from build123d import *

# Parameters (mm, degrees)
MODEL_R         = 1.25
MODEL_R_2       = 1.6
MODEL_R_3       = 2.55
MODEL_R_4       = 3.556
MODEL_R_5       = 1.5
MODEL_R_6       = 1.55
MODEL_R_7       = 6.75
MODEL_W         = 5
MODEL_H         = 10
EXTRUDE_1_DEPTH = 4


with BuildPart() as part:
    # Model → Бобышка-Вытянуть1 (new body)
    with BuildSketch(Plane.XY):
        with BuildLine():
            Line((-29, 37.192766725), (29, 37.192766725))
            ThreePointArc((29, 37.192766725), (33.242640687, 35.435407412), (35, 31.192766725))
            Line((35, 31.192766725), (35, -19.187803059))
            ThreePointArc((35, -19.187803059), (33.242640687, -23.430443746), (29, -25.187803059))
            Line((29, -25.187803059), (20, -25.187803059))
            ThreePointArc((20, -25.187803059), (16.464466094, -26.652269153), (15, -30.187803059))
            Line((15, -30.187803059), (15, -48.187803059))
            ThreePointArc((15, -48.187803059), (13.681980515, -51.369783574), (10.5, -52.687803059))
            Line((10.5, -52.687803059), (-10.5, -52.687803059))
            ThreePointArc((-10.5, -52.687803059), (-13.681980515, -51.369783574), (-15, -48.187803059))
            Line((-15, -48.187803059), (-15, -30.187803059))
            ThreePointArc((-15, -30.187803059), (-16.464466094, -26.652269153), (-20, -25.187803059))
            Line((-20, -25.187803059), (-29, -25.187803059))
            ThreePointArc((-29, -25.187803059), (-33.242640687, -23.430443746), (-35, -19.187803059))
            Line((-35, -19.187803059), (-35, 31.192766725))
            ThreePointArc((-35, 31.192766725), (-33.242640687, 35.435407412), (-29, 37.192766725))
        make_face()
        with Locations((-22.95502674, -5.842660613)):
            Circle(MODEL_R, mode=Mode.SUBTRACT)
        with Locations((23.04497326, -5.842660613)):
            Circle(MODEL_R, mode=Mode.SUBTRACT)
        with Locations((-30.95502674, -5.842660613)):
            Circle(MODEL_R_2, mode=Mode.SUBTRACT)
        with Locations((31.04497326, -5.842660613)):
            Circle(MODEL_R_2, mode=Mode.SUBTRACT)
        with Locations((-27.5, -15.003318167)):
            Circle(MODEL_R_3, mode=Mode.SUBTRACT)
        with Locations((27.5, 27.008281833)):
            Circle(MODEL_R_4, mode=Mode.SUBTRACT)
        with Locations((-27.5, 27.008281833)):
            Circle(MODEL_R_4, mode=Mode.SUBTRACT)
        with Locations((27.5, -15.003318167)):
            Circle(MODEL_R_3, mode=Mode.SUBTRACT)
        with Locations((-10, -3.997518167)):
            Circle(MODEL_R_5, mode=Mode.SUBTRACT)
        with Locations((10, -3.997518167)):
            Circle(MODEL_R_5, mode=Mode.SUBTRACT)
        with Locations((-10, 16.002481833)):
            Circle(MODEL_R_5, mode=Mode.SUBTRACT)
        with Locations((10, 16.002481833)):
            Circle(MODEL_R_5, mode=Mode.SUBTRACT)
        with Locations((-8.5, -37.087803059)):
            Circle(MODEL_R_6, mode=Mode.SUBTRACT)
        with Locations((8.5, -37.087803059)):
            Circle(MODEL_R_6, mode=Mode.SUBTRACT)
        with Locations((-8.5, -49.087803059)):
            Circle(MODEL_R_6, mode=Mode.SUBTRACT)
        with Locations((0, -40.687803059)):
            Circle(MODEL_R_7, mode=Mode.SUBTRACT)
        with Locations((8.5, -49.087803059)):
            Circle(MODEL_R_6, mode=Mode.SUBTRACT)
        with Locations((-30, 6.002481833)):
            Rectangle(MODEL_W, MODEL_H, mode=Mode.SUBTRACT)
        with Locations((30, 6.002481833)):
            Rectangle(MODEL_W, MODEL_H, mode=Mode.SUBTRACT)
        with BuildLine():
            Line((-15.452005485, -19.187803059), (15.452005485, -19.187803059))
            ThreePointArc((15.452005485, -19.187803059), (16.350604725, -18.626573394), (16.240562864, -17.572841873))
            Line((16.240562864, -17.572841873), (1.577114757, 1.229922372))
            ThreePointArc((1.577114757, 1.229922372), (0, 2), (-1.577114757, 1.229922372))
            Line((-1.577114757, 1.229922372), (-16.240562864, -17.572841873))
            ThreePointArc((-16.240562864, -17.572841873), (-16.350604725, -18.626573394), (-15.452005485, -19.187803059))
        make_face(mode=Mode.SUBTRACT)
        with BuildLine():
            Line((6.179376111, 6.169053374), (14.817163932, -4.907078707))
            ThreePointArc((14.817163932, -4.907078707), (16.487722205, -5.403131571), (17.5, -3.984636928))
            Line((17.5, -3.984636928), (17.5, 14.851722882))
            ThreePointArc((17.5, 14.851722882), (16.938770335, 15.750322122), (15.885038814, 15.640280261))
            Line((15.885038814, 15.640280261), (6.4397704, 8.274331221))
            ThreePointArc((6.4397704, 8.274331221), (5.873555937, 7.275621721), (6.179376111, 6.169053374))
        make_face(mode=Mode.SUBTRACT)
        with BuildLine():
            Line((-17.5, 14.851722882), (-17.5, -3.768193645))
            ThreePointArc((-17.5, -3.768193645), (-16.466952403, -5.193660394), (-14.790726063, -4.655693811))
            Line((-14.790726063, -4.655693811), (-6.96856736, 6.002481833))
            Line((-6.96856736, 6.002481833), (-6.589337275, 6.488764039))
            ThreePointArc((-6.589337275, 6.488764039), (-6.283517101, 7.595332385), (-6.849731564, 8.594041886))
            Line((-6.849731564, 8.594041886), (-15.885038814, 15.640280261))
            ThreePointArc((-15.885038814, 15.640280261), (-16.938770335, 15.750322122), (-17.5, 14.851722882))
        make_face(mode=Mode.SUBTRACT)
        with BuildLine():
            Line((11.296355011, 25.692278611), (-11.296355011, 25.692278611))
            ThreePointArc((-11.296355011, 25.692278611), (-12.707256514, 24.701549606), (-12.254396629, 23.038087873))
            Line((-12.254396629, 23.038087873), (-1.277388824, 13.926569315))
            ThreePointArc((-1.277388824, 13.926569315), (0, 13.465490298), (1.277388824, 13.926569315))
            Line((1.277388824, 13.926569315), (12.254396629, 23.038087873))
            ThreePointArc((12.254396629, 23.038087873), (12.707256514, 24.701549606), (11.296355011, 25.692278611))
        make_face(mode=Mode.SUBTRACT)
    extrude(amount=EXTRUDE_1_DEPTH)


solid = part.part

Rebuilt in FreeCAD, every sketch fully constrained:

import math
import FreeCAD as App
import Part
import Sketcher
Q = App.Units.Quantity


def add_polygon(sketch, points):
    """Adds a closed chain of lines whose ends are joined by coincident constraints."""
    first, n = sketch.GeometryCount, len(points)
    for a, b in zip(points, points[1:] + points[:1]):
        sketch.addGeometry(Part.LineSegment(App.Vector(*a, 0), App.Vector(*b, 0)), False)
    for i in range(n):
        sketch.addConstraint(Sketcher.Constraint("Coincident", first + i, 2, first + (i + 1) % n, 1))

doc = App.newDocument("Part")
body = doc.addObject("PartDesign::Body", "Body")

# Sketch on XY plane
sketch1 = doc.addObject("Sketcher::SketchObject", "Sketch")
body.addObject(sketch1)
sketch1.AttachmentSupport = (doc.XY_Plane, [""])
sketch1.MapMode = "FlatFace"
sketch1.addGeometry(Part.LineSegment(App.Vector(29, 37.2, 0), App.Vector(-29, 37.2, 0)), False)  # 0
sketch1.addGeometry(Part.ArcOfCircle(Part.Circle(App.Vector(-29, 31.2, 0), App.Vector(0, 0, 1), 6), math.radians(90), math.radians(180)), False)  # 1
sketch1.addGeometry(Part.LineSegment(App.Vector(-35, 31.2, 0), App.Vector(-35, -19.2, 0)), False)  # 2
sketch1.addGeometry(Part.ArcOfCircle(Part.Circle(App.Vector(-29, -19.2, 0), App.Vector(0, 0, 1), 6), math.radians(180), math.radians(270)), False)  # 3
sketch1.addGeometry(Part.LineSegment(App.Vector(-29, -25.2, 0), App.Vector(-20, -25.2, 0)), False)  # 4
sketch1.addGeometry(Part.ArcOfCircle(Part.Circle(App.Vector(-20, -30.2, 0), App.Vector(0, 0, 1), 5), math.radians(0), math.radians(90)), False)  # 5
sketch1.addGeometry(Part.LineSegment(App.Vector(-15, -30.2, 0), App.Vector(-15, -48.2, 0)), False)  # 6
sketch1.addGeometry(Part.ArcOfCircle(Part.Circle(App.Vector(-10.5, -48.2, 0), App.Vector(0, 0, 1), 4.5), math.radians(-180), math.radians(-90)), False)  # 7
sketch1.addGeometry(Part.LineSegment(App.Vector(-10.5, -52.7, 0), App.Vector(10.5, -52.7, 0)), False)  # 8
sketch1.addGeometry(Part.ArcOfCircle(Part.Circle(App.Vector(10.5, -48.2, 0), App.Vector(0, 0, 1), 4.5), math.radians(-90), math.radians(0)), False)  # 9
sketch1.addGeometry(Part.LineSegment(App.Vector(15, -48.2, 0), App.Vector(15, -30.2, 0)), False)  # 10
sketch1.addGeometry(Part.ArcOfCircle(Part.Circle(App.Vector(20, -30.2, 0), App.Vector(0, 0, 1), 5), math.radians(90), math.radians(180)), False)  # 11
sketch1.addGeometry(Part.LineSegment(App.Vector(20, -25.2, 0), App.Vector(29, -25.2, 0)), False)  # 12
sketch1.addGeometry(Part.ArcOfCircle(Part.Circle(App.Vector(29, -19.2, 0), App.Vector(0, 0, 1), 6), math.radians(-90), math.radians(0)), False)  # 13
sketch1.addGeometry(Part.LineSegment(App.Vector(35, -19.2, 0), App.Vector(35, 31.2, 0)), False)  # 14
sketch1.addGeometry(Part.ArcOfCircle(Part.Circle(App.Vector(29, 31.2, 0), App.Vector(0, 0, 1), 6), math.radians(0), math.radians(90)), False)  # 15
sketch1.addGeometry(Part.Circle(App.Vector(8.5, -49.1, 0), App.Vector(0, 0, 1), 1.6), False)  # 16
sketch1.addGeometry(Part.Circle(App.Vector(8.5, -37.1, 0), App.Vector(0, 0, 1), 1.6), False)  # 17
sketch1.addGeometry(Part.Circle(App.Vector(27.5, -15, 0), App.Vector(0, 0, 1), 2.5), False)  # 18
sketch1.addGeometry(Part.Circle(App.Vector(0, -40.7, 0), App.Vector(0, 0, 1), 6.8), False)  # 19
sketch1.addGeometry(Part.Circle(App.Vector(-8.5, -49.1, 0), App.Vector(0, 0, 1), 1.6), False)  # 20
sketch1.addGeometry(Part.Circle(App.Vector(-8.5, -37.1, 0), App.Vector(0, 0, 1), 1.6), False)  # 21
sketch1.addGeometry(Part.Circle(App.Vector(-27.5, -15, 0), App.Vector(0, 0, 1), 2.5), False)  # 22
sketch1.addGeometry(Part.Circle(App.Vector(31, -5.8, 0), App.Vector(0, 0, 1), 1.6), False)  # 23
sketch1.addGeometry(Part.Circle(App.Vector(23, -5.8, 0), App.Vector(0, 0, 1), 1.2), False)  # 24
add_polygon(sketch1, [(27.5, 1), (27.5, 11), (32.5, 11), (32.5, 1)])  # lines 25-28
sketch1.addGeometry(Part.Circle(App.Vector(10, -4, 0), App.Vector(0, 0, 1), 1.5), False)  # 29
sketch1.addGeometry(Part.ArcOfCircle(Part.Circle(App.Vector(7.4, 7.1, 0), App.Vector(0, 0, 1), 1.5), math.radians(128), math.radians(218)), False)  # 30
sketch1.addGeometry(Part.LineSegment(App.Vector(6.4, 8.3, 0), App.Vector(15.9, 15.6, 0)), False)  # 31
sketch1.addGeometry(Part.ArcOfCircle(Part.Circle(App.Vector(16.5, 14.9, 0), App.Vector(0, 0, 1), 1), math.radians(0), math.radians(128)), False)  # 32
sketch1.addGeometry(Part.LineSegment(App.Vector(17.5, 14.9, 0), App.Vector(17.5, -4, 0)), False)  # 33
sketch1.addGeometry(Part.ArcOfCircle(Part.Circle(App.Vector(16, -4, 0), App.Vector(0, 0, 1), 1.5), math.radians(-142), math.radians(0)), False)  # 34
sketch1.addGeometry(Part.LineSegment(App.Vector(14.8, -4.9, 0), App.Vector(6.2, 6.2, 0)), False)  # 35
sketch1.addGeometry(Part.Circle(App.Vector(27.5, 27, 0), App.Vector(0, 0, 1), 3.6), False)  # 36
sketch1.addGeometry(Part.Circle(App.Vector(10, 16, 0), App.Vector(0, 0, 1), 1.5), False)  # 37
sketch1.addGeometry(Part.ArcOfCircle(Part.Circle(App.Vector(-15.5, -18.2, 0), App.Vector(0, 0, 1), 1), math.radians(142), math.radians(270)), False)  # 38
sketch1.addGeometry(Part.LineSegment(App.Vector(-16.2, -17.6, 0), App.Vector(-1.6, 1.2, 0)), False)  # 39
sketch1.addGeometry(Part.ArcOfCircle(Part.Circle(App.Vector(0, 0, 0), App.Vector(0, 0, 1), 2), math.radians(38), math.radians(142)), False)  # 40
sketch1.addGeometry(Part.LineSegment(App.Vector(1.6, 1.2, 0), App.Vector(16.2, -17.6, 0)), False)  # 41
sketch1.addGeometry(Part.ArcOfCircle(Part.Circle(App.Vector(15.5, -18.2, 0), App.Vector(0, 0, 1), 1), math.radians(-90), math.radians(38)), False)  # 42
sketch1.addGeometry(Part.LineSegment(App.Vector(15.5, -19.2, 0), App.Vector(-15.5, -19.2, 0)), False)  # 43
sketch1.addGeometry(Part.Circle(App.Vector(-10, -4, 0), App.Vector(0, 0, 1), 1.5), False)  # 44
sketch1.addGeometry(Part.ArcOfCircle(Part.Circle(App.Vector(-16.5, 14.9, 0), App.Vector(0, 0, 1), 1), math.radians(52), math.radians(180)), False)  # 45
sketch1.addGeometry(Part.LineSegment(App.Vector(-15.9, 15.6, 0), App.Vector(-6.8, 8.6, 0)), False)  # 46
sketch1.addGeometry(Part.ArcOfCircle(Part.Circle(App.Vector(-7.8, 7.4, 0), App.Vector(0, 0, 1), 1.5), math.radians(-38), math.radians(52)), False)  # 47
sketch1.addGeometry(Part.LineSegment(App.Vector(-6.6, 6.5, 0), App.Vector(-7, 6, 0)), False)  # 48
sketch1.addGeometry(Part.LineSegment(App.Vector(-7, 6, 0), App.Vector(-14.8, -4.7, 0)), False)  # 49
sketch1.addGeometry(Part.ArcOfCircle(Part.Circle(App.Vector(-16, -3.8, 0), App.Vector(0, 0, 1), 1.5), math.radians(180), math.radians(324)), False)  # 50
sketch1.addGeometry(Part.LineSegment(App.Vector(-17.5, -3.8, 0), App.Vector(-17.5, 14.9, 0)), False)  # 51
sketch1.addGeometry(Part.Circle(App.Vector(-23, -5.8, 0), App.Vector(0, 0, 1), 1.2), False)  # 52
sketch1.addGeometry(Part.Circle(App.Vector(-31, -5.8, 0), App.Vector(0, 0, 1), 1.6), False)  # 53
add_polygon(sketch1, [(-32.5, 1), (-32.5, 11), (-27.5, 11), (-27.5, 1)])  # lines 54-57
sketch1.addGeometry(Part.ArcOfCircle(Part.Circle(App.Vector(11.3, 24.2, 0), App.Vector(0, 0, 1), 1.5), math.radians(-50), math.radians(90)), False)  # 58
sketch1.addGeometry(Part.LineSegment(App.Vector(12.3, 23, 0), App.Vector(1.3, 13.9, 0)), False)  # 59
sketch1.addGeometry(Part.ArcOfCircle(Part.Circle(App.Vector(0, 15.5, 0), App.Vector(0, 0, 1), 2), math.radians(-130), math.radians(-50)), False)  # 60
sketch1.addGeometry(Part.LineSegment(App.Vector(-1.3, 13.9, 0), App.Vector(-12.3, 23, 0)), False)  # 61
sketch1.addGeometry(Part.ArcOfCircle(Part.Circle(App.Vector(-11.3, 24.2, 0), App.Vector(0, 0, 1), 1.5), math.radians(90), math.radians(230)), False)  # 62
sketch1.addGeometry(Part.LineSegment(App.Vector(-11.3, 25.7, 0), App.Vector(11.3, 25.7, 0)), False)  # 63
sketch1.addGeometry(Part.Circle(App.Vector(-10, 16, 0), App.Vector(0, 0, 1), 1.5), False)  # 64
sketch1.addGeometry(Part.Circle(App.Vector(-27.5, 27, 0), App.Vector(0, 0, 1), 3.6), False)  # 65
sketch1.addConstraint(Sketcher.Constraint("Tangent", 0, 2, 1, 1))
sketch1.addConstraint(Sketcher.Constraint("Tangent", 1, 2, 2, 1))
sketch1.addConstraint(Sketcher.Constraint("Tangent", 2, 2, 3, 1))
sketch1.addConstraint(Sketcher.Constraint("Tangent", 3, 2, 4, 1))
sketch1.addConstraint(Sketcher.Constraint("Tangent", 4, 2, 5, 2))
sketch1.addConstraint(Sketcher.Constraint("Tangent", 5, 1, 6, 1))
sketch1.addConstraint(Sketcher.Constraint("Tangent", 6, 2, 7, 1))
sketch1.addConstraint(Sketcher.Constraint("Tangent", 7, 2, 8, 1))
sketch1.addConstraint(Sketcher.Constraint("Tangent", 8, 2, 9, 1))
sketch1.addConstraint(Sketcher.Constraint("Tangent", 9, 2, 10, 1))
sketch1.addConstraint(Sketcher.Constraint("Tangent", 10, 2, 11, 2))
sketch1.addConstraint(Sketcher.Constraint("Tangent", 11, 1, 12, 1))
sketch1.addConstraint(Sketcher.Constraint("Tangent", 12, 2, 13, 1))
sketch1.addConstraint(Sketcher.Constraint("Tangent", 13, 2, 14, 1))
sketch1.addConstraint(Sketcher.Constraint("Tangent", 14, 2, 15, 1))
sketch1.addConstraint(Sketcher.Constraint("Tangent", 15, 2, 0, 1))
sketch1.addConstraint(Sketcher.Constraint("Tangent", 30, 1, 31, 1))
sketch1.addConstraint(Sketcher.Constraint("Tangent", 31, 2, 32, 2))
sketch1.addConstraint(Sketcher.Constraint("Tangent", 32, 1, 33, 1))
sketch1.addConstraint(Sketcher.Constraint("Tangent", 33, 2, 34, 2))
sketch1.addConstraint(Sketcher.Constraint("Tangent", 34, 1, 35, 1))
sketch1.addConstraint(Sketcher.Constraint("Tangent", 35, 2, 30, 2))
sketch1.addConstraint(Sketcher.Constraint("Tangent", 38, 1, 39, 1))
sketch1.addConstraint(Sketcher.Constraint("Tangent", 39, 2, 40, 2))
sketch1.addConstraint(Sketcher.Constraint("Tangent", 40, 1, 41, 1))
sketch1.addConstraint(Sketcher.Constraint("Tangent", 41, 2, 42, 2))
sketch1.addConstraint(Sketcher.Constraint("Tangent", 42, 1, 43, 1))
sketch1.addConstraint(Sketcher.Constraint("Tangent", 43, 2, 38, 2))
sketch1.addConstraint(Sketcher.Constraint("Tangent", 45, 1, 46, 1))
sketch1.addConstraint(Sketcher.Constraint("Tangent", 46, 2, 47, 2))
sketch1.addConstraint(Sketcher.Constraint("Tangent", 47, 1, 48, 1))
sketch1.addConstraint(Sketcher.Constraint("Coincident", 48, 2, 49, 1))
sketch1.addConstraint(Sketcher.Constraint("Tangent", 49, 2, 50, 2))
sketch1.addConstraint(Sketcher.Constraint("Tangent", 50, 1, 51, 1))
sketch1.addConstraint(Sketcher.Constraint("Tangent", 51, 2, 45, 2))
sketch1.addConstraint(Sketcher.Constraint("Tangent", 58, 1, 59, 1))
sketch1.addConstraint(Sketcher.Constraint("Tangent", 59, 2, 60, 2))
sketch1.addConstraint(Sketcher.Constraint("Tangent", 60, 1, 61, 1))
sketch1.addConstraint(Sketcher.Constraint("Tangent", 61, 2, 62, 2))
sketch1.addConstraint(Sketcher.Constraint("Tangent", 62, 1, 63, 1))
sketch1.addConstraint(Sketcher.Constraint("Tangent", 63, 2, 58, 2))
sketch1.addConstraint(Sketcher.Constraint("Horizontal", 0))
sketch1.addConstraint(Sketcher.Constraint("Vertical", 2))
sketch1.addConstraint(Sketcher.Constraint("Horizontal", 4))
sketch1.addConstraint(Sketcher.Constraint("Vertical", 6))
sketch1.addConstraint(Sketcher.Constraint("Horizontal", 8))
sketch1.addConstraint(Sketcher.Constraint("Vertical", 10))
sketch1.addConstraint(Sketcher.Constraint("Horizontal", 12))
sketch1.addConstraint(Sketcher.Constraint("Vertical", 14))
sketch1.addConstraint(Sketcher.Constraint("Vertical", 25))
sketch1.addConstraint(Sketcher.Constraint("Horizontal", 26))
sketch1.addConstraint(Sketcher.Constraint("Vertical", 27))
sketch1.addConstraint(Sketcher.Constraint("Horizontal", 28))
sketch1.addConstraint(Sketcher.Constraint("Vertical", 33))
sketch1.addConstraint(Sketcher.Constraint("Horizontal", 43))
sketch1.addConstraint(Sketcher.Constraint("Vertical", 51))
sketch1.addConstraint(Sketcher.Constraint("Vertical", 54))
sketch1.addConstraint(Sketcher.Constraint("Horizontal", 55))
sketch1.addConstraint(Sketcher.Constraint("Vertical", 56))
sketch1.addConstraint(Sketcher.Constraint("Horizontal", 57))
sketch1.addConstraint(Sketcher.Constraint("Horizontal", 63))
sketch1.addConstraint(Sketcher.Constraint("Coincident", 40, 3, -1, 1))
sketch1.addConstraint(Sketcher.Constraint("Equal", 1, 3))
sketch1.addConstraint(Sketcher.Constraint("Equal", 7, 9))
sketch1.addConstraint(Sketcher.Constraint("Equal", 5, 11))
sketch1.addConstraint(Sketcher.Constraint("Equal", 3, 13))
sketch1.addConstraint(Sketcher.Constraint("Equal", 13, 15))
sketch1.addConstraint(Sketcher.Constraint("Equal", 16, 17))
sketch1.addConstraint(Sketcher.Constraint("Equal", 17, 20))
sketch1.addConstraint(Sketcher.Constraint("Equal", 20, 21))
sketch1.addConstraint(Sketcher.Constraint("Equal", 18, 22))
sketch1.addConstraint(Sketcher.Constraint("Equal", 29, 30))
sketch1.addConstraint(Sketcher.Constraint("Equal", 30, 34))
sketch1.addConstraint(Sketcher.Constraint("Equal", 34, 37))
sketch1.addConstraint(Sketcher.Constraint("Equal", 32, 38))
sketch1.addConstraint(Sketcher.Constraint("Equal", 38, 42))
sketch1.addConstraint(Sketcher.Constraint("Equal", 37, 44))
sketch1.addConstraint(Sketcher.Constraint("Equal", 42, 45))
sketch1.addConstraint(Sketcher.Constraint("Equal", 44, 47))
sketch1.addConstraint(Sketcher.Constraint("Equal", 47, 50))
sketch1.addConstraint(Sketcher.Constraint("Equal", 24, 52))
sketch1.addConstraint(Sketcher.Constraint("Equal", 23, 53))
sketch1.addConstraint(Sketcher.Constraint("Equal", 50, 58))
sketch1.addConstraint(Sketcher.Constraint("Equal", 40, 60))
sketch1.addConstraint(Sketcher.Constraint("Equal", 58, 62))
sketch1.addConstraint(Sketcher.Constraint("Equal", 62, 64))
sketch1.addConstraint(Sketcher.Constraint("Equal", 36, 65))
sketch1.addConstraint(Sketcher.Constraint("Symmetric", 5, 3, 11, 3, -2))
sketch1.addConstraint(Sketcher.Constraint("Symmetric", 16, 3, 20, 3, -2))
sketch1.addConstraint(Sketcher.Constraint("Symmetric", 17, 3, 21, 3, -2))
sketch1.addConstraint(Sketcher.Constraint("Symmetric", 18, 3, 22, 3, -2))
sketch1.addConstraint(Sketcher.Constraint("Symmetric", 29, 3, 44, 3, -2))
sketch1.addConstraint(Sketcher.Constraint("Symmetric", 32, 3, 45, 3, -2))
sketch1.addConstraint(Sketcher.Constraint("Symmetric", 37, 3, 64, 3, -2))
sketch1.addConstraint(Sketcher.Constraint("Symmetric", 36, 3, 65, 3, -2))
sketch1.addConstraint(Sketcher.Constraint("Symmetric", 26, 2, 54, 2, -2))
sketch1.addConstraint(Sketcher.Constraint("Symmetric", 28, 2, 56, 2, -2))
sketch1.addConstraint(Sketcher.Constraint("Symmetric", 59, 2, 60, 1, -2))
sketch1.addConstraint(Sketcher.Constraint("PointOnObject", 19, 3, -2))
sketch1.addConstraint(Sketcher.Constraint("Perpendicular", 31, 35))
sketch1.addConstraint(Sketcher.Constraint("Parallel", 35, 41))
sketch1.addConstraint(Sketcher.Constraint("Perpendicular", 39, 46))
sketch1.addConstraint(Sketcher.Constraint("Perpendicular", 46, 48))
sketch1.addConstraint(Sketcher.Constraint("Horizontal", 23, 3, 24, 3))
sketch1.addConstraint(Sketcher.Constraint("Horizontal", 24, 3, 52, 3))
sketch1.addConstraint(Sketcher.Constraint("Horizontal", 52, 3, 53, 3))
sketch1.addConstraint(Sketcher.Constraint("Horizontal", 39, 2, 40, 1))
sketch1.addConstraint(Sketcher.Constraint("Horizontal", 13, 2, 42, 1))
sketch1.addConstraint(Sketcher.Constraint("Vertical", 16, 3, 17, 3))
sketch1.addConstraint(Sketcher.Constraint("Vertical", 18, 3, 36, 3))
sketch1.addConstraint(Sketcher.Constraint("Vertical", 29, 3, 37, 3))
sketch1.addConstraint(Sketcher.Constraint("Vertical", 36, 3, 25, 2))
sketch1.addConstraint(Sketcher.Constraint("Equal", 4, 12))
sketch1.addConstraint(Sketcher.Constraint("Diameter", 29, Q("3 mm")))
sketch1.addConstraint(Sketcher.Constraint("Radius", 1, Q("6 mm")))
sketch1.addConstraint(Sketcher.Constraint("Radius", 5, Q("5 mm")))
sketch1.addConstraint(Sketcher.Constraint("Radius", 32, Q("1 mm")))
sketch1.addConstraint(Sketcher.Constraint("Radius", 40, Q("2 mm")))
sketch1.addConstraint(Sketcher.Constraint("Diameter", 16, Q("3.1 mm")))
sketch1.addConstraint(Sketcher.Constraint("Diameter", 18, Q("5.1 mm")))
sketch1.addConstraint(Sketcher.Constraint("Diameter", 19, Q("13.5 mm")))
sketch1.addConstraint(Sketcher.Constraint("Diameter", 23, Q("3.2 mm")))
sketch1.addConstraint(Sketcher.Constraint("Diameter", 24, Q("2.5 mm")))
sketch1.addConstraint(Sketcher.Constraint("Radius", 7, Q("4.5 mm")))
sketch1.addConstraint(Sketcher.Constraint("DistanceX", 0, 2, 0, 1, Q("58 mm")))
sketch1.addConstraint(Sketcher.Constraint("DistanceX", 4, 1, 4, 2, Q("9 mm")))
sketch1.addConstraint(Sketcher.Constraint("DistanceX", 26, 1, 26, 2, Q("5 mm")))
sketch1.addConstraint(Sketcher.Constraint("DistanceY", 6, 2, 6, 1, Q("18 mm")))
sketch1.addConstraint(Sketcher.Constraint("DistanceY", 25, 1, 25, 2, Q("10 mm")))
sketch1.addConstraint(Sketcher.Constraint("Diameter", 36, Q("7.112 mm")))
sketch1.addConstraint(Sketcher.Constraint("DistanceX", -1, 1, 29, 3, Q("10 mm")))
sketch1.addConstraint(Sketcher.Constraint("DistanceX", -1, 1, 34, 3, Q("16 mm")))
sketch1.addConstraint(Sketcher.Constraint("DistanceX", -1, 1, 16, 3, Q("8.5 mm")))
sketch1.addConstraint(Sketcher.Constraint("DistanceX", -1, 1, 18, 3, Q("27.5 mm")))
sketch1.addConstraint(Sketcher.Constraint("DistanceX", 43, 2, 43, 1, Q("30.904011 mm")))
sketch1.addConstraint(Sketcher.Constraint("DistanceX", 63, 1, 63, 2, Q("22.59271 mm")))
sketch1.addConstraint(Sketcher.Constraint("DistanceY", 2, 2, 2, 1, Q("50.38057 mm")))
sketch1.addConstraint(Sketcher.Constraint("DistanceY", 33, 2, 33, 1, Q("18.83636 mm")))
sketch1.addConstraint(Sketcher.Constraint("Distance", 31, Q("11.977909 mm")))
sketch1.addConstraint(Sketcher.Constraint("Distance", 46, Q("11.458021 mm")))
sketch1.addConstraint(Sketcher.Constraint("Distance", 59, Q("14.26585 mm")))
sketch1.addConstraint(Sketcher.Constraint("DistanceY", 51, 1, 51, 2, Q("18.619917 mm")))
sketch1.addConstraint(Sketcher.Constraint("DistanceY", 18, 3, -1, 1, Q("15.003318 mm")))
sketch1.addConstraint(Sketcher.Constraint("DistanceY", 23, 3, -1, 1, Q("5.842661 mm")))
sketch1.addConstraint(Sketcher.Constraint("DistanceY", 29, 3, -1, 1, Q("3.997518 mm")))
sketch1.addConstraint(Sketcher.Constraint("DistanceY", -1, 1, 36, 3, Q("27.008282 mm")))
sketch1.addConstraint(Sketcher.Constraint("DistanceY", -1, 1, 37, 3, Q("16.002482 mm")))
sketch1.addConstraint(Sketcher.Constraint("DistanceY", -1, 1, 58, 3, Q("24.192279 mm")))
sketch1.addConstraint(Sketcher.Constraint("DistanceY", -1, 1, 25, 2, Q("11.002482 mm")))
sketch1.addConstraint(Sketcher.Constraint("DistanceY", -1, 1, 30, 1, Q("8.274331 mm")))
sketch1.addConstraint(Sketcher.Constraint("DistanceY", -1, 1, 48, 2, Q("6.002482 mm")))
sketch1.addConstraint(Sketcher.Constraint("DistanceY", 16, 3, -1, 1, Q("49.087803 mm")))
sketch1.addConstraint(Sketcher.Constraint("DistanceY", 17, 3, -1, 1, Q("37.087803 mm")))
sketch1.addConstraint(Sketcher.Constraint("DistanceY", 19, 3, -1, 1, Q("40.687803 mm")))
sketch1.addConstraint(Sketcher.Constraint("DistanceX", -1, 1, 23, 3, Q("31.044973 mm")))
sketch1.addConstraint(Sketcher.Constraint("DistanceX", -1, 1, 24, 3, Q("23.044973 mm")))
sketch1.addConstraint(Sketcher.Constraint("DistanceX", 52, 3, -1, 1, Q("22.955027 mm")))
sketch1.addConstraint(Sketcher.Constraint("DistanceX", 53, 3, -1, 1, Q("30.955027 mm")))
pad1 = doc.addObject("PartDesign::Pad", "Pad")
body.addObject(pad1)
pad1.Profile = sketch1
pad1.Length = 4

doc.recompute()
